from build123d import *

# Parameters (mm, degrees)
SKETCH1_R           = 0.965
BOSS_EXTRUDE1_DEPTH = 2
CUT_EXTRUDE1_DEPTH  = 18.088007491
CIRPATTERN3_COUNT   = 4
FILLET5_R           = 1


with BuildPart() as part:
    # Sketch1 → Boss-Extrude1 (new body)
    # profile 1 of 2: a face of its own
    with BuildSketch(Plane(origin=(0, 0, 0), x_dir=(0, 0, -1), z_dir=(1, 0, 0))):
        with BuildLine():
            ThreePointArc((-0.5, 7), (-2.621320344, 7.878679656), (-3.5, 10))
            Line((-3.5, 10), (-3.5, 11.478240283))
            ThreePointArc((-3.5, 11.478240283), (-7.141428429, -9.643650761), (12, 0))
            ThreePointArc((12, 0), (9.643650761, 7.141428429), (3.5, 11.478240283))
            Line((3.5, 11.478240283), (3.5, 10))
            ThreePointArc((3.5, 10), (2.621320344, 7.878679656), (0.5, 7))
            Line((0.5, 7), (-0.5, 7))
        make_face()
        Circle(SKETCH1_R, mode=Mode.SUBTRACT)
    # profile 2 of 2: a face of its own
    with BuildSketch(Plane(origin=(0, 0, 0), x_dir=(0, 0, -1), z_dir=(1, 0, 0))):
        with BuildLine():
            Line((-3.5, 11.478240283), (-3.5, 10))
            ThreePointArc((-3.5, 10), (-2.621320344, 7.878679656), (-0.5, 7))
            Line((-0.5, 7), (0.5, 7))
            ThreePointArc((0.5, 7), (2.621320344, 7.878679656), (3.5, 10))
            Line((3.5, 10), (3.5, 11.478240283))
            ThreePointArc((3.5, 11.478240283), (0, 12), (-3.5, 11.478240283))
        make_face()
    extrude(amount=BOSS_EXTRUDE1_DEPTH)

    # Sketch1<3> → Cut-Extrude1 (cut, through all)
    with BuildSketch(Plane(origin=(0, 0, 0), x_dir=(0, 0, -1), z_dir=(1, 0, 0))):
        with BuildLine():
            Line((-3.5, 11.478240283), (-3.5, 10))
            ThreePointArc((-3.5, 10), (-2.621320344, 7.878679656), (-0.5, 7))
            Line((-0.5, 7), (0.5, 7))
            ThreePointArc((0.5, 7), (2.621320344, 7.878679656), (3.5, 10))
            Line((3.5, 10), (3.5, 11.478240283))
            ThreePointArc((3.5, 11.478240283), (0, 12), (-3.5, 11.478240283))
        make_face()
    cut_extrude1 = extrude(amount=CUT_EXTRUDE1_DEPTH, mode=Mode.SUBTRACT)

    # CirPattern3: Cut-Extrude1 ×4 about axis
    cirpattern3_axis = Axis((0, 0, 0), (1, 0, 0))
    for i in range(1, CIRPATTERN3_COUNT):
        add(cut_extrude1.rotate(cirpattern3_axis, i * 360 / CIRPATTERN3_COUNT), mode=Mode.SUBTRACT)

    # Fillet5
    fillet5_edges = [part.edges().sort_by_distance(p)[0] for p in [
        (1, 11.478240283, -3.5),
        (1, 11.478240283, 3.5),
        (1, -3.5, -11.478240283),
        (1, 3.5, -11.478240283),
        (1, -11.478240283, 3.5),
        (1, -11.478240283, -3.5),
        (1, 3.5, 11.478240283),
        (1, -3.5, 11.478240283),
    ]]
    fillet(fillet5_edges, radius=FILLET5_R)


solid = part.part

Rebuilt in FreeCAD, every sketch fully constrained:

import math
import FreeCAD as App
import Part
import Sketcher
from FreeCAD import Vector
Q = App.Units.Quantity


def edges_at(feature, points):
    """Names of the edges that pass closest to the given points."""
    edges = feature.Shape.Edges
    near = lambda p: min(range(len(edges)), key=lambda i: edges[i].distToShape(Part.Vertex(*p))[0])
    return sorted({f"Edge{near(p) + 1}" for p in points})

doc = App.newDocument("Part")
body = doc.addObject("PartDesign::Body", "Body")

# Sketch on YZ plane
sketch1 = body.newObject("Sketcher::SketchObject", "Sketch")
sketch1.AttachmentSupport = (doc.getObject("YZ_Plane"), [""])
sketch1.MapMode = "FlatFace"
sketch1.addGeometry(Part.ArcOfCircle(Part.Circle(Vector(0, 0, 0), Vector(0, 0, 1), 12), math.radians(17), math.radians(270)), False)
sketch1.addGeometry(Part.ArcOfCircle(Part.Circle(Vector(0, 0, 0), Vector(0, 0, 1), 12), math.radians(-90), math.radians(-17)), False)
sketch1.addGeometry(Part.ArcOfCircle(Part.Circle(Vector(0, 0, 0), Vector(0, 0, 1), 12), math.radians(-17), math.radians(17)), False)
sketch1.addGeometry(Part.Circle(Vector(0, 0, 0), Vector(0, 0, 1), 1), False)
sketch1.addConstraint(Sketcher.Constraint("Tangent", 0, 2, 1, 1))
sketch1.addConstraint(Sketcher.Constraint("Tangent", 1, 2, 2, 1))
sketch1.addConstraint(Sketcher.Constraint("Tangent", 2, 2, 0, 1))
sketch1.addConstraint(Sketcher.Constraint("Coincident", 0, 3, -1, 1))
sketch1.addConstraint(Sketcher.Constraint("Coincident", 3, 3, -1, 1))
sketch1.addConstraint(Sketcher.Constraint("PointOnObject", 0, 2, -2))
sketch1.addConstraint(Sketcher.Constraint("Vertical", 1, 2, 2, 2))
sketch1.addConstraint(Sketcher.Constraint("Radius", 0, Q("12 mm")))
sketch1.addConstraint(Sketcher.Constraint("Diameter", 3, Q("1.93 mm")))
sketch1.addConstraint(Sketcher.Constraint("DistanceY", 1, 2, 2, 2, Q("7 mm")))
pad1 = body.newObject("PartDesign::Pad", "Pad")
pad1.Profile = sketch1
pad1.Length = 2

# Sketch on YZ plane
sketch2 = body.newObject("Sketcher::SketchObject", "Sketch001")
sketch2.AttachmentSupport = (doc.getObject("YZ_Plane"), [""])
sketch2.MapMode = "FlatFace"
sketch2.addGeometry(Part.LineSegment(Vector(11.5, 3.5, 0), Vector(10, 3.5, 0)), False)
sketch2.addGeometry(Part.ArcOfCircle(Part.Circle(Vector(10, 0.5, 0), Vector(0, 0, 1), 3), math.radians(90), math.radians(180)), False)
sketch2.addGeometry(Part.LineSegment(Vector(7, 0.5, 0), Vector(7, -0.5, 0)), False)
sketch2.addGeometry(Part.ArcOfCircle(Part.Circle(Vector(10, -0.5, 0), Vector(0, 0, 1), 3), math.radians(180), math.radians(270)), False)
sketch2.addGeometry(Part.LineSegment(Vector(10, -3.5, 0), Vector(11.5, -3.5, 0)), False)
sketch2.addGeometry(Part.ArcOfCircle(Part.Circle(Vector(0, 0, 0), Vector(0, 0, 1), 12), math.radians(-17), math.radians(17)), False)
sketch2.addConstraint(Sketcher.Constraint("Tangent", 0, 2, 1, 1))
sketch2.addConstraint(Sketcher.Constraint("Tangent", 1, 2, 2, 1))
sketch2.addConstraint(Sketcher.Constraint("Tangent", 2, 2, 3, 1))
sketch2.addConstraint(Sketcher.Constraint("Tangent", 3, 2, 4, 1))
sketch2.addConstraint(Sketcher.Constraint("Coincident", 4, 2, 5, 1))
sketch2.addConstraint(Sketcher.Constraint("Coincident", 5, 2, 0, 1))
sketch2.addConstraint(Sketcher.Constraint("Horizontal", 0))
sketch2.addConstraint(Sketcher.Constraint("Vertical", 2))
sketch2.addConstraint(Sketcher.Constraint("Horizontal", 4))
sketch2.addConstraint(Sketcher.Constraint("Coincident", 5, 3, -1, 1))
sketch2.addConstraint(Sketcher.Constraint("Equal", 1, 3))
sketch2.addConstraint(Sketcher.Constraint("Vertical", 4, 2, 5, 2))
sketch2.addConstraint(Sketcher.Constraint("Radius", 1, Q("3 mm")))
sketch2.addConstraint(Sketcher.Constraint("Radius", 5, Q("12 mm")))
sketch2.addConstraint(Sketcher.Constraint("DistanceY", 2, 2, 2, 1, Q("1 mm")))
sketch2.addConstraint(Sketcher.Constraint("DistanceX", -1, 1, 1, 3, Q("10 mm")))
pocket1 = body.newObject("PartDesign::Pocket", "Pocket")
pocket1.Profile = sketch2
pocket1.Type = "ThroughAll"
pocket1.Reversed = True
doc.recompute()

polarpattern = body.newObject("PartDesign::PolarPattern", "PolarPattern")
polarpattern.Originals = [pocket1]
polarpattern.Axis = (doc.getObject("X_Axis"), [""])
polarpattern.Angle = 360
polarpattern.Occurrences = 4
body.Tip = polarpattern
doc.recompute()

fillet = body.newObject("PartDesign::Fillet", "Fillet")
fillet.Base = (polarpattern, edges_at(polarpattern, [
    (1, 11.478, -3.5),
    (1, 11.478, 3.5),
    (1, -3.5, -11.478),
    (1, 3.5, -11.478),
    (1, -11.478, 3.5),
    (1, -11.478, -3.5),
    (1, 3.5, 11.478),
    (1, -3.5, 11.478),
]))
fillet.Radius = 1

doc.recompute()
